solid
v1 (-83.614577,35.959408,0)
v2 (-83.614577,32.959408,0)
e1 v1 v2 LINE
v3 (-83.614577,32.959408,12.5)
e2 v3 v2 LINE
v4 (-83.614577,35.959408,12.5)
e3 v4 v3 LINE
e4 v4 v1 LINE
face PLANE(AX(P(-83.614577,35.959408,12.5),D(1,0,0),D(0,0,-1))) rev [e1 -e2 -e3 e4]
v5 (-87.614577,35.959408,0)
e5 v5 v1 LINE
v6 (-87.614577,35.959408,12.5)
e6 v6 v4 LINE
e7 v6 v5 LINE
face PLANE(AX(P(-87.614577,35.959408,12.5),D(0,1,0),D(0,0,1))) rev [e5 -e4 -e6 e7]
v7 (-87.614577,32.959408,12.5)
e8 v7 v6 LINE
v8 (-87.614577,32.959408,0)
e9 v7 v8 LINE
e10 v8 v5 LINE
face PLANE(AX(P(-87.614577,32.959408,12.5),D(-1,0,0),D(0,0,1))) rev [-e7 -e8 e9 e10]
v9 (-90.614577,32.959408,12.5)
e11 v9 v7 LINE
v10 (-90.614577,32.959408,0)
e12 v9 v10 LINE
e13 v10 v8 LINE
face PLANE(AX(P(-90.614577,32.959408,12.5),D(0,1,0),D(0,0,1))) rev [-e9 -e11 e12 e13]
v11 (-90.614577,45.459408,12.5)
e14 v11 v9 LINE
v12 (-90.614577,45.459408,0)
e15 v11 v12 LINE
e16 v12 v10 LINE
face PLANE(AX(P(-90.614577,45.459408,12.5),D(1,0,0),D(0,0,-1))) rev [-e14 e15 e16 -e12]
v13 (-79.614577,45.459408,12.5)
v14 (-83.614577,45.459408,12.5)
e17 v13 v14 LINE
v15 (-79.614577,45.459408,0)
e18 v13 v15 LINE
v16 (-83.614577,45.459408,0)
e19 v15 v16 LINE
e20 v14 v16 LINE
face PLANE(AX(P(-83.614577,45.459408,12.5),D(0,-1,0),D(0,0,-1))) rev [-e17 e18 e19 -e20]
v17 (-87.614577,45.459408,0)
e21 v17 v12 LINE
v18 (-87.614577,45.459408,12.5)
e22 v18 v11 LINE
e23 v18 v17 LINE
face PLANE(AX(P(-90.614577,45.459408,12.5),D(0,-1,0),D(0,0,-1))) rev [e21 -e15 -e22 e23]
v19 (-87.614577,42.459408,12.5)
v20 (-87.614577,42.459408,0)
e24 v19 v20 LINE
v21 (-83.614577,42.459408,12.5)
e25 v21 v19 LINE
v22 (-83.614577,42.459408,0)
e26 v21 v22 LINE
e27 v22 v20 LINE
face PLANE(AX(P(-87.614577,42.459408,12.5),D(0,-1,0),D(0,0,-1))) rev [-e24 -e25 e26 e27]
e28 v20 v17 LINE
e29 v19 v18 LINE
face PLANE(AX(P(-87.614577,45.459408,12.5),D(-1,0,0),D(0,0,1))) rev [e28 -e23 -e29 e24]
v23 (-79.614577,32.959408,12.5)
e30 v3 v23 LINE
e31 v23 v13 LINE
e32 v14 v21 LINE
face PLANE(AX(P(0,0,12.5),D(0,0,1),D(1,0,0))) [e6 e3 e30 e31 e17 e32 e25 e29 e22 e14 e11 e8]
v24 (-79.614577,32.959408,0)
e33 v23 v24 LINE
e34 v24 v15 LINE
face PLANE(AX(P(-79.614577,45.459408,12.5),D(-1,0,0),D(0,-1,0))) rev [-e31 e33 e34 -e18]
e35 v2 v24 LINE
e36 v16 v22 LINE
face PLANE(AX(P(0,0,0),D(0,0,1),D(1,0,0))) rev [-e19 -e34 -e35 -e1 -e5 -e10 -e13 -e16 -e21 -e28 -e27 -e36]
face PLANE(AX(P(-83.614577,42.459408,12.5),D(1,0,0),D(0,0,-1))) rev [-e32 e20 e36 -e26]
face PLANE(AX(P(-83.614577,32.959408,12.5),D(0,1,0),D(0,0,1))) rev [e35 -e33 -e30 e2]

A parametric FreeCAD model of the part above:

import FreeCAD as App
import Part
import Sketcher
from FreeCAD import Vector
Q = App.Units.Quantity

doc = App.newDocument("Part")
body = doc.addObject("PartDesign::Body", "Body")

# Sketch on XY plane
sketch1 = body.newObject("Sketcher::SketchObject", "Sketch")
sketch1.AttachmentSupport = (doc.getObject("XY_Plane"), [""])
sketch1.MapMode = "FlatFace"
sketch1.addGeometry([
    Part.LineSegment(Vector(-87.6, 45.5, 0), Vector(-90.6, 45.5, 0)),  # 0
    Part.LineSegment(Vector(-90.6, 45.5, 0), Vector(-90.6, 33, 0)),  # 1
    Part.LineSegment(Vector(-90.6, 33, 0), Vector(-87.6, 33, 0)),  # 2
    Part.LineSegment(Vector(-87.6, 33, 0), Vector(-87.6, 36, 0)),  # 3
    Part.LineSegment(Vector(-87.6, 36, 0), Vector(-83.6, 36, 0)),  # 4
    Part.LineSegment(Vector(-83.6, 36, 0), Vector(-83.6, 33, 0)),  # 5
    Part.LineSegment(Vector(-83.6, 33, 0), Vector(-79.6, 33, 0)),  # 6
    Part.LineSegment(Vector(-79.6, 33, 0), Vector(-79.6, 45.5, 0)),  # 7
    Part.LineSegment(Vector(-79.6, 45.5, 0), Vector(-83.6, 45.5, 0)),  # 8
    Part.LineSegment(Vector(-83.6, 45.5, 0), Vector(-83.6, 42.5, 0)),  # 9
    Part.LineSegment(Vector(-83.6, 42.5, 0), Vector(-87.6, 42.5, 0)),  # 10
    Part.LineSegment(Vector(-87.6, 42.5, 0), Vector(-87.6, 45.5, 0)),  # 11
], False)
sketch1.addConstraint([
    Sketcher.Constraint("Coincident", 0, 2, 1, 1),
    Sketcher.Constraint("Coincident", 1, 2, 2, 1),
    Sketcher.Constraint("Coincident", 2, 2, 3, 1),
    Sketcher.Constraint("Coincident", 3, 2, 4, 1),
    Sketcher.Constraint("Coincident", 4, 2, 5, 1),
    Sketcher.Constraint("Coincident", 5, 2, 6, 1),
    Sketcher.Constraint("Coincident", 6, 2, 7, 1),
    Sketcher.Constraint("Coincident", 7, 2, 8, 1),
    Sketcher.Constraint("Coincident", 8, 2, 9, 1),
    Sketcher.Constraint("Coincident", 9, 2, 10, 1),
    Sketcher.Constraint("Coincident", 10, 2, 11, 1),
    Sketcher.Constraint("Coincident", 11, 2, 0, 1),
    Sketcher.Constraint("Horizontal", 0),
    Sketcher.Constraint("Vertical", 1),
    Sketcher.Constraint("Horizontal", 2),
    Sketcher.Constraint("Vertical", 3),
    Sketcher.Constraint("Horizontal", 4),
    Sketcher.Constraint("Vertical", 5),
    Sketcher.Constraint("Horizontal", 6),
    Sketcher.Constraint("Vertical", 7),
    Sketcher.Constraint("Horizontal", 8),
    Sketcher.Constraint("Vertical", 9),
    Sketcher.Constraint("Horizontal", 10),
    Sketcher.Constraint("Vertical", 11),
    Sketcher.Constraint("Horizontal", 2, 2, 5, 2),
    Sketcher.Constraint("Horizontal", 0, 2, 7, 2),
    Sketcher.Constraint("Vertical", 5, 2, 8, 2),
    Sketcher.Constraint("Vertical", 3, 2, 10, 2),
    Sketcher.Constraint("Equal", 4, 6),
    Sketcher.Constraint("Equal", 2, 3),
    Sketcher.Constraint("Equal", 5, 9),
    Sketcher.Constraint("DistanceX", 0, 2, 0, 1, Q("3 mm")),
    Sketcher.Constraint("DistanceX", 4, 1, 4, 2, Q("4 mm")),
    Sketcher.Constraint("DistanceY", 1, 2, 1, 1, Q("12.5 mm")),
    Sketcher.Constraint("DistanceY", -1, 1, 0, 2, Q("45.459408 mm")),
    Sketcher.Constraint("DistanceX", 0, 2, -1, 1, Q("90.614577 mm")),
])
pad1 = body.newObject("PartDesign::Pad", "Pad")
pad1.Profile = sketch1
pad1.Length = 12.5

doc.recompute()
